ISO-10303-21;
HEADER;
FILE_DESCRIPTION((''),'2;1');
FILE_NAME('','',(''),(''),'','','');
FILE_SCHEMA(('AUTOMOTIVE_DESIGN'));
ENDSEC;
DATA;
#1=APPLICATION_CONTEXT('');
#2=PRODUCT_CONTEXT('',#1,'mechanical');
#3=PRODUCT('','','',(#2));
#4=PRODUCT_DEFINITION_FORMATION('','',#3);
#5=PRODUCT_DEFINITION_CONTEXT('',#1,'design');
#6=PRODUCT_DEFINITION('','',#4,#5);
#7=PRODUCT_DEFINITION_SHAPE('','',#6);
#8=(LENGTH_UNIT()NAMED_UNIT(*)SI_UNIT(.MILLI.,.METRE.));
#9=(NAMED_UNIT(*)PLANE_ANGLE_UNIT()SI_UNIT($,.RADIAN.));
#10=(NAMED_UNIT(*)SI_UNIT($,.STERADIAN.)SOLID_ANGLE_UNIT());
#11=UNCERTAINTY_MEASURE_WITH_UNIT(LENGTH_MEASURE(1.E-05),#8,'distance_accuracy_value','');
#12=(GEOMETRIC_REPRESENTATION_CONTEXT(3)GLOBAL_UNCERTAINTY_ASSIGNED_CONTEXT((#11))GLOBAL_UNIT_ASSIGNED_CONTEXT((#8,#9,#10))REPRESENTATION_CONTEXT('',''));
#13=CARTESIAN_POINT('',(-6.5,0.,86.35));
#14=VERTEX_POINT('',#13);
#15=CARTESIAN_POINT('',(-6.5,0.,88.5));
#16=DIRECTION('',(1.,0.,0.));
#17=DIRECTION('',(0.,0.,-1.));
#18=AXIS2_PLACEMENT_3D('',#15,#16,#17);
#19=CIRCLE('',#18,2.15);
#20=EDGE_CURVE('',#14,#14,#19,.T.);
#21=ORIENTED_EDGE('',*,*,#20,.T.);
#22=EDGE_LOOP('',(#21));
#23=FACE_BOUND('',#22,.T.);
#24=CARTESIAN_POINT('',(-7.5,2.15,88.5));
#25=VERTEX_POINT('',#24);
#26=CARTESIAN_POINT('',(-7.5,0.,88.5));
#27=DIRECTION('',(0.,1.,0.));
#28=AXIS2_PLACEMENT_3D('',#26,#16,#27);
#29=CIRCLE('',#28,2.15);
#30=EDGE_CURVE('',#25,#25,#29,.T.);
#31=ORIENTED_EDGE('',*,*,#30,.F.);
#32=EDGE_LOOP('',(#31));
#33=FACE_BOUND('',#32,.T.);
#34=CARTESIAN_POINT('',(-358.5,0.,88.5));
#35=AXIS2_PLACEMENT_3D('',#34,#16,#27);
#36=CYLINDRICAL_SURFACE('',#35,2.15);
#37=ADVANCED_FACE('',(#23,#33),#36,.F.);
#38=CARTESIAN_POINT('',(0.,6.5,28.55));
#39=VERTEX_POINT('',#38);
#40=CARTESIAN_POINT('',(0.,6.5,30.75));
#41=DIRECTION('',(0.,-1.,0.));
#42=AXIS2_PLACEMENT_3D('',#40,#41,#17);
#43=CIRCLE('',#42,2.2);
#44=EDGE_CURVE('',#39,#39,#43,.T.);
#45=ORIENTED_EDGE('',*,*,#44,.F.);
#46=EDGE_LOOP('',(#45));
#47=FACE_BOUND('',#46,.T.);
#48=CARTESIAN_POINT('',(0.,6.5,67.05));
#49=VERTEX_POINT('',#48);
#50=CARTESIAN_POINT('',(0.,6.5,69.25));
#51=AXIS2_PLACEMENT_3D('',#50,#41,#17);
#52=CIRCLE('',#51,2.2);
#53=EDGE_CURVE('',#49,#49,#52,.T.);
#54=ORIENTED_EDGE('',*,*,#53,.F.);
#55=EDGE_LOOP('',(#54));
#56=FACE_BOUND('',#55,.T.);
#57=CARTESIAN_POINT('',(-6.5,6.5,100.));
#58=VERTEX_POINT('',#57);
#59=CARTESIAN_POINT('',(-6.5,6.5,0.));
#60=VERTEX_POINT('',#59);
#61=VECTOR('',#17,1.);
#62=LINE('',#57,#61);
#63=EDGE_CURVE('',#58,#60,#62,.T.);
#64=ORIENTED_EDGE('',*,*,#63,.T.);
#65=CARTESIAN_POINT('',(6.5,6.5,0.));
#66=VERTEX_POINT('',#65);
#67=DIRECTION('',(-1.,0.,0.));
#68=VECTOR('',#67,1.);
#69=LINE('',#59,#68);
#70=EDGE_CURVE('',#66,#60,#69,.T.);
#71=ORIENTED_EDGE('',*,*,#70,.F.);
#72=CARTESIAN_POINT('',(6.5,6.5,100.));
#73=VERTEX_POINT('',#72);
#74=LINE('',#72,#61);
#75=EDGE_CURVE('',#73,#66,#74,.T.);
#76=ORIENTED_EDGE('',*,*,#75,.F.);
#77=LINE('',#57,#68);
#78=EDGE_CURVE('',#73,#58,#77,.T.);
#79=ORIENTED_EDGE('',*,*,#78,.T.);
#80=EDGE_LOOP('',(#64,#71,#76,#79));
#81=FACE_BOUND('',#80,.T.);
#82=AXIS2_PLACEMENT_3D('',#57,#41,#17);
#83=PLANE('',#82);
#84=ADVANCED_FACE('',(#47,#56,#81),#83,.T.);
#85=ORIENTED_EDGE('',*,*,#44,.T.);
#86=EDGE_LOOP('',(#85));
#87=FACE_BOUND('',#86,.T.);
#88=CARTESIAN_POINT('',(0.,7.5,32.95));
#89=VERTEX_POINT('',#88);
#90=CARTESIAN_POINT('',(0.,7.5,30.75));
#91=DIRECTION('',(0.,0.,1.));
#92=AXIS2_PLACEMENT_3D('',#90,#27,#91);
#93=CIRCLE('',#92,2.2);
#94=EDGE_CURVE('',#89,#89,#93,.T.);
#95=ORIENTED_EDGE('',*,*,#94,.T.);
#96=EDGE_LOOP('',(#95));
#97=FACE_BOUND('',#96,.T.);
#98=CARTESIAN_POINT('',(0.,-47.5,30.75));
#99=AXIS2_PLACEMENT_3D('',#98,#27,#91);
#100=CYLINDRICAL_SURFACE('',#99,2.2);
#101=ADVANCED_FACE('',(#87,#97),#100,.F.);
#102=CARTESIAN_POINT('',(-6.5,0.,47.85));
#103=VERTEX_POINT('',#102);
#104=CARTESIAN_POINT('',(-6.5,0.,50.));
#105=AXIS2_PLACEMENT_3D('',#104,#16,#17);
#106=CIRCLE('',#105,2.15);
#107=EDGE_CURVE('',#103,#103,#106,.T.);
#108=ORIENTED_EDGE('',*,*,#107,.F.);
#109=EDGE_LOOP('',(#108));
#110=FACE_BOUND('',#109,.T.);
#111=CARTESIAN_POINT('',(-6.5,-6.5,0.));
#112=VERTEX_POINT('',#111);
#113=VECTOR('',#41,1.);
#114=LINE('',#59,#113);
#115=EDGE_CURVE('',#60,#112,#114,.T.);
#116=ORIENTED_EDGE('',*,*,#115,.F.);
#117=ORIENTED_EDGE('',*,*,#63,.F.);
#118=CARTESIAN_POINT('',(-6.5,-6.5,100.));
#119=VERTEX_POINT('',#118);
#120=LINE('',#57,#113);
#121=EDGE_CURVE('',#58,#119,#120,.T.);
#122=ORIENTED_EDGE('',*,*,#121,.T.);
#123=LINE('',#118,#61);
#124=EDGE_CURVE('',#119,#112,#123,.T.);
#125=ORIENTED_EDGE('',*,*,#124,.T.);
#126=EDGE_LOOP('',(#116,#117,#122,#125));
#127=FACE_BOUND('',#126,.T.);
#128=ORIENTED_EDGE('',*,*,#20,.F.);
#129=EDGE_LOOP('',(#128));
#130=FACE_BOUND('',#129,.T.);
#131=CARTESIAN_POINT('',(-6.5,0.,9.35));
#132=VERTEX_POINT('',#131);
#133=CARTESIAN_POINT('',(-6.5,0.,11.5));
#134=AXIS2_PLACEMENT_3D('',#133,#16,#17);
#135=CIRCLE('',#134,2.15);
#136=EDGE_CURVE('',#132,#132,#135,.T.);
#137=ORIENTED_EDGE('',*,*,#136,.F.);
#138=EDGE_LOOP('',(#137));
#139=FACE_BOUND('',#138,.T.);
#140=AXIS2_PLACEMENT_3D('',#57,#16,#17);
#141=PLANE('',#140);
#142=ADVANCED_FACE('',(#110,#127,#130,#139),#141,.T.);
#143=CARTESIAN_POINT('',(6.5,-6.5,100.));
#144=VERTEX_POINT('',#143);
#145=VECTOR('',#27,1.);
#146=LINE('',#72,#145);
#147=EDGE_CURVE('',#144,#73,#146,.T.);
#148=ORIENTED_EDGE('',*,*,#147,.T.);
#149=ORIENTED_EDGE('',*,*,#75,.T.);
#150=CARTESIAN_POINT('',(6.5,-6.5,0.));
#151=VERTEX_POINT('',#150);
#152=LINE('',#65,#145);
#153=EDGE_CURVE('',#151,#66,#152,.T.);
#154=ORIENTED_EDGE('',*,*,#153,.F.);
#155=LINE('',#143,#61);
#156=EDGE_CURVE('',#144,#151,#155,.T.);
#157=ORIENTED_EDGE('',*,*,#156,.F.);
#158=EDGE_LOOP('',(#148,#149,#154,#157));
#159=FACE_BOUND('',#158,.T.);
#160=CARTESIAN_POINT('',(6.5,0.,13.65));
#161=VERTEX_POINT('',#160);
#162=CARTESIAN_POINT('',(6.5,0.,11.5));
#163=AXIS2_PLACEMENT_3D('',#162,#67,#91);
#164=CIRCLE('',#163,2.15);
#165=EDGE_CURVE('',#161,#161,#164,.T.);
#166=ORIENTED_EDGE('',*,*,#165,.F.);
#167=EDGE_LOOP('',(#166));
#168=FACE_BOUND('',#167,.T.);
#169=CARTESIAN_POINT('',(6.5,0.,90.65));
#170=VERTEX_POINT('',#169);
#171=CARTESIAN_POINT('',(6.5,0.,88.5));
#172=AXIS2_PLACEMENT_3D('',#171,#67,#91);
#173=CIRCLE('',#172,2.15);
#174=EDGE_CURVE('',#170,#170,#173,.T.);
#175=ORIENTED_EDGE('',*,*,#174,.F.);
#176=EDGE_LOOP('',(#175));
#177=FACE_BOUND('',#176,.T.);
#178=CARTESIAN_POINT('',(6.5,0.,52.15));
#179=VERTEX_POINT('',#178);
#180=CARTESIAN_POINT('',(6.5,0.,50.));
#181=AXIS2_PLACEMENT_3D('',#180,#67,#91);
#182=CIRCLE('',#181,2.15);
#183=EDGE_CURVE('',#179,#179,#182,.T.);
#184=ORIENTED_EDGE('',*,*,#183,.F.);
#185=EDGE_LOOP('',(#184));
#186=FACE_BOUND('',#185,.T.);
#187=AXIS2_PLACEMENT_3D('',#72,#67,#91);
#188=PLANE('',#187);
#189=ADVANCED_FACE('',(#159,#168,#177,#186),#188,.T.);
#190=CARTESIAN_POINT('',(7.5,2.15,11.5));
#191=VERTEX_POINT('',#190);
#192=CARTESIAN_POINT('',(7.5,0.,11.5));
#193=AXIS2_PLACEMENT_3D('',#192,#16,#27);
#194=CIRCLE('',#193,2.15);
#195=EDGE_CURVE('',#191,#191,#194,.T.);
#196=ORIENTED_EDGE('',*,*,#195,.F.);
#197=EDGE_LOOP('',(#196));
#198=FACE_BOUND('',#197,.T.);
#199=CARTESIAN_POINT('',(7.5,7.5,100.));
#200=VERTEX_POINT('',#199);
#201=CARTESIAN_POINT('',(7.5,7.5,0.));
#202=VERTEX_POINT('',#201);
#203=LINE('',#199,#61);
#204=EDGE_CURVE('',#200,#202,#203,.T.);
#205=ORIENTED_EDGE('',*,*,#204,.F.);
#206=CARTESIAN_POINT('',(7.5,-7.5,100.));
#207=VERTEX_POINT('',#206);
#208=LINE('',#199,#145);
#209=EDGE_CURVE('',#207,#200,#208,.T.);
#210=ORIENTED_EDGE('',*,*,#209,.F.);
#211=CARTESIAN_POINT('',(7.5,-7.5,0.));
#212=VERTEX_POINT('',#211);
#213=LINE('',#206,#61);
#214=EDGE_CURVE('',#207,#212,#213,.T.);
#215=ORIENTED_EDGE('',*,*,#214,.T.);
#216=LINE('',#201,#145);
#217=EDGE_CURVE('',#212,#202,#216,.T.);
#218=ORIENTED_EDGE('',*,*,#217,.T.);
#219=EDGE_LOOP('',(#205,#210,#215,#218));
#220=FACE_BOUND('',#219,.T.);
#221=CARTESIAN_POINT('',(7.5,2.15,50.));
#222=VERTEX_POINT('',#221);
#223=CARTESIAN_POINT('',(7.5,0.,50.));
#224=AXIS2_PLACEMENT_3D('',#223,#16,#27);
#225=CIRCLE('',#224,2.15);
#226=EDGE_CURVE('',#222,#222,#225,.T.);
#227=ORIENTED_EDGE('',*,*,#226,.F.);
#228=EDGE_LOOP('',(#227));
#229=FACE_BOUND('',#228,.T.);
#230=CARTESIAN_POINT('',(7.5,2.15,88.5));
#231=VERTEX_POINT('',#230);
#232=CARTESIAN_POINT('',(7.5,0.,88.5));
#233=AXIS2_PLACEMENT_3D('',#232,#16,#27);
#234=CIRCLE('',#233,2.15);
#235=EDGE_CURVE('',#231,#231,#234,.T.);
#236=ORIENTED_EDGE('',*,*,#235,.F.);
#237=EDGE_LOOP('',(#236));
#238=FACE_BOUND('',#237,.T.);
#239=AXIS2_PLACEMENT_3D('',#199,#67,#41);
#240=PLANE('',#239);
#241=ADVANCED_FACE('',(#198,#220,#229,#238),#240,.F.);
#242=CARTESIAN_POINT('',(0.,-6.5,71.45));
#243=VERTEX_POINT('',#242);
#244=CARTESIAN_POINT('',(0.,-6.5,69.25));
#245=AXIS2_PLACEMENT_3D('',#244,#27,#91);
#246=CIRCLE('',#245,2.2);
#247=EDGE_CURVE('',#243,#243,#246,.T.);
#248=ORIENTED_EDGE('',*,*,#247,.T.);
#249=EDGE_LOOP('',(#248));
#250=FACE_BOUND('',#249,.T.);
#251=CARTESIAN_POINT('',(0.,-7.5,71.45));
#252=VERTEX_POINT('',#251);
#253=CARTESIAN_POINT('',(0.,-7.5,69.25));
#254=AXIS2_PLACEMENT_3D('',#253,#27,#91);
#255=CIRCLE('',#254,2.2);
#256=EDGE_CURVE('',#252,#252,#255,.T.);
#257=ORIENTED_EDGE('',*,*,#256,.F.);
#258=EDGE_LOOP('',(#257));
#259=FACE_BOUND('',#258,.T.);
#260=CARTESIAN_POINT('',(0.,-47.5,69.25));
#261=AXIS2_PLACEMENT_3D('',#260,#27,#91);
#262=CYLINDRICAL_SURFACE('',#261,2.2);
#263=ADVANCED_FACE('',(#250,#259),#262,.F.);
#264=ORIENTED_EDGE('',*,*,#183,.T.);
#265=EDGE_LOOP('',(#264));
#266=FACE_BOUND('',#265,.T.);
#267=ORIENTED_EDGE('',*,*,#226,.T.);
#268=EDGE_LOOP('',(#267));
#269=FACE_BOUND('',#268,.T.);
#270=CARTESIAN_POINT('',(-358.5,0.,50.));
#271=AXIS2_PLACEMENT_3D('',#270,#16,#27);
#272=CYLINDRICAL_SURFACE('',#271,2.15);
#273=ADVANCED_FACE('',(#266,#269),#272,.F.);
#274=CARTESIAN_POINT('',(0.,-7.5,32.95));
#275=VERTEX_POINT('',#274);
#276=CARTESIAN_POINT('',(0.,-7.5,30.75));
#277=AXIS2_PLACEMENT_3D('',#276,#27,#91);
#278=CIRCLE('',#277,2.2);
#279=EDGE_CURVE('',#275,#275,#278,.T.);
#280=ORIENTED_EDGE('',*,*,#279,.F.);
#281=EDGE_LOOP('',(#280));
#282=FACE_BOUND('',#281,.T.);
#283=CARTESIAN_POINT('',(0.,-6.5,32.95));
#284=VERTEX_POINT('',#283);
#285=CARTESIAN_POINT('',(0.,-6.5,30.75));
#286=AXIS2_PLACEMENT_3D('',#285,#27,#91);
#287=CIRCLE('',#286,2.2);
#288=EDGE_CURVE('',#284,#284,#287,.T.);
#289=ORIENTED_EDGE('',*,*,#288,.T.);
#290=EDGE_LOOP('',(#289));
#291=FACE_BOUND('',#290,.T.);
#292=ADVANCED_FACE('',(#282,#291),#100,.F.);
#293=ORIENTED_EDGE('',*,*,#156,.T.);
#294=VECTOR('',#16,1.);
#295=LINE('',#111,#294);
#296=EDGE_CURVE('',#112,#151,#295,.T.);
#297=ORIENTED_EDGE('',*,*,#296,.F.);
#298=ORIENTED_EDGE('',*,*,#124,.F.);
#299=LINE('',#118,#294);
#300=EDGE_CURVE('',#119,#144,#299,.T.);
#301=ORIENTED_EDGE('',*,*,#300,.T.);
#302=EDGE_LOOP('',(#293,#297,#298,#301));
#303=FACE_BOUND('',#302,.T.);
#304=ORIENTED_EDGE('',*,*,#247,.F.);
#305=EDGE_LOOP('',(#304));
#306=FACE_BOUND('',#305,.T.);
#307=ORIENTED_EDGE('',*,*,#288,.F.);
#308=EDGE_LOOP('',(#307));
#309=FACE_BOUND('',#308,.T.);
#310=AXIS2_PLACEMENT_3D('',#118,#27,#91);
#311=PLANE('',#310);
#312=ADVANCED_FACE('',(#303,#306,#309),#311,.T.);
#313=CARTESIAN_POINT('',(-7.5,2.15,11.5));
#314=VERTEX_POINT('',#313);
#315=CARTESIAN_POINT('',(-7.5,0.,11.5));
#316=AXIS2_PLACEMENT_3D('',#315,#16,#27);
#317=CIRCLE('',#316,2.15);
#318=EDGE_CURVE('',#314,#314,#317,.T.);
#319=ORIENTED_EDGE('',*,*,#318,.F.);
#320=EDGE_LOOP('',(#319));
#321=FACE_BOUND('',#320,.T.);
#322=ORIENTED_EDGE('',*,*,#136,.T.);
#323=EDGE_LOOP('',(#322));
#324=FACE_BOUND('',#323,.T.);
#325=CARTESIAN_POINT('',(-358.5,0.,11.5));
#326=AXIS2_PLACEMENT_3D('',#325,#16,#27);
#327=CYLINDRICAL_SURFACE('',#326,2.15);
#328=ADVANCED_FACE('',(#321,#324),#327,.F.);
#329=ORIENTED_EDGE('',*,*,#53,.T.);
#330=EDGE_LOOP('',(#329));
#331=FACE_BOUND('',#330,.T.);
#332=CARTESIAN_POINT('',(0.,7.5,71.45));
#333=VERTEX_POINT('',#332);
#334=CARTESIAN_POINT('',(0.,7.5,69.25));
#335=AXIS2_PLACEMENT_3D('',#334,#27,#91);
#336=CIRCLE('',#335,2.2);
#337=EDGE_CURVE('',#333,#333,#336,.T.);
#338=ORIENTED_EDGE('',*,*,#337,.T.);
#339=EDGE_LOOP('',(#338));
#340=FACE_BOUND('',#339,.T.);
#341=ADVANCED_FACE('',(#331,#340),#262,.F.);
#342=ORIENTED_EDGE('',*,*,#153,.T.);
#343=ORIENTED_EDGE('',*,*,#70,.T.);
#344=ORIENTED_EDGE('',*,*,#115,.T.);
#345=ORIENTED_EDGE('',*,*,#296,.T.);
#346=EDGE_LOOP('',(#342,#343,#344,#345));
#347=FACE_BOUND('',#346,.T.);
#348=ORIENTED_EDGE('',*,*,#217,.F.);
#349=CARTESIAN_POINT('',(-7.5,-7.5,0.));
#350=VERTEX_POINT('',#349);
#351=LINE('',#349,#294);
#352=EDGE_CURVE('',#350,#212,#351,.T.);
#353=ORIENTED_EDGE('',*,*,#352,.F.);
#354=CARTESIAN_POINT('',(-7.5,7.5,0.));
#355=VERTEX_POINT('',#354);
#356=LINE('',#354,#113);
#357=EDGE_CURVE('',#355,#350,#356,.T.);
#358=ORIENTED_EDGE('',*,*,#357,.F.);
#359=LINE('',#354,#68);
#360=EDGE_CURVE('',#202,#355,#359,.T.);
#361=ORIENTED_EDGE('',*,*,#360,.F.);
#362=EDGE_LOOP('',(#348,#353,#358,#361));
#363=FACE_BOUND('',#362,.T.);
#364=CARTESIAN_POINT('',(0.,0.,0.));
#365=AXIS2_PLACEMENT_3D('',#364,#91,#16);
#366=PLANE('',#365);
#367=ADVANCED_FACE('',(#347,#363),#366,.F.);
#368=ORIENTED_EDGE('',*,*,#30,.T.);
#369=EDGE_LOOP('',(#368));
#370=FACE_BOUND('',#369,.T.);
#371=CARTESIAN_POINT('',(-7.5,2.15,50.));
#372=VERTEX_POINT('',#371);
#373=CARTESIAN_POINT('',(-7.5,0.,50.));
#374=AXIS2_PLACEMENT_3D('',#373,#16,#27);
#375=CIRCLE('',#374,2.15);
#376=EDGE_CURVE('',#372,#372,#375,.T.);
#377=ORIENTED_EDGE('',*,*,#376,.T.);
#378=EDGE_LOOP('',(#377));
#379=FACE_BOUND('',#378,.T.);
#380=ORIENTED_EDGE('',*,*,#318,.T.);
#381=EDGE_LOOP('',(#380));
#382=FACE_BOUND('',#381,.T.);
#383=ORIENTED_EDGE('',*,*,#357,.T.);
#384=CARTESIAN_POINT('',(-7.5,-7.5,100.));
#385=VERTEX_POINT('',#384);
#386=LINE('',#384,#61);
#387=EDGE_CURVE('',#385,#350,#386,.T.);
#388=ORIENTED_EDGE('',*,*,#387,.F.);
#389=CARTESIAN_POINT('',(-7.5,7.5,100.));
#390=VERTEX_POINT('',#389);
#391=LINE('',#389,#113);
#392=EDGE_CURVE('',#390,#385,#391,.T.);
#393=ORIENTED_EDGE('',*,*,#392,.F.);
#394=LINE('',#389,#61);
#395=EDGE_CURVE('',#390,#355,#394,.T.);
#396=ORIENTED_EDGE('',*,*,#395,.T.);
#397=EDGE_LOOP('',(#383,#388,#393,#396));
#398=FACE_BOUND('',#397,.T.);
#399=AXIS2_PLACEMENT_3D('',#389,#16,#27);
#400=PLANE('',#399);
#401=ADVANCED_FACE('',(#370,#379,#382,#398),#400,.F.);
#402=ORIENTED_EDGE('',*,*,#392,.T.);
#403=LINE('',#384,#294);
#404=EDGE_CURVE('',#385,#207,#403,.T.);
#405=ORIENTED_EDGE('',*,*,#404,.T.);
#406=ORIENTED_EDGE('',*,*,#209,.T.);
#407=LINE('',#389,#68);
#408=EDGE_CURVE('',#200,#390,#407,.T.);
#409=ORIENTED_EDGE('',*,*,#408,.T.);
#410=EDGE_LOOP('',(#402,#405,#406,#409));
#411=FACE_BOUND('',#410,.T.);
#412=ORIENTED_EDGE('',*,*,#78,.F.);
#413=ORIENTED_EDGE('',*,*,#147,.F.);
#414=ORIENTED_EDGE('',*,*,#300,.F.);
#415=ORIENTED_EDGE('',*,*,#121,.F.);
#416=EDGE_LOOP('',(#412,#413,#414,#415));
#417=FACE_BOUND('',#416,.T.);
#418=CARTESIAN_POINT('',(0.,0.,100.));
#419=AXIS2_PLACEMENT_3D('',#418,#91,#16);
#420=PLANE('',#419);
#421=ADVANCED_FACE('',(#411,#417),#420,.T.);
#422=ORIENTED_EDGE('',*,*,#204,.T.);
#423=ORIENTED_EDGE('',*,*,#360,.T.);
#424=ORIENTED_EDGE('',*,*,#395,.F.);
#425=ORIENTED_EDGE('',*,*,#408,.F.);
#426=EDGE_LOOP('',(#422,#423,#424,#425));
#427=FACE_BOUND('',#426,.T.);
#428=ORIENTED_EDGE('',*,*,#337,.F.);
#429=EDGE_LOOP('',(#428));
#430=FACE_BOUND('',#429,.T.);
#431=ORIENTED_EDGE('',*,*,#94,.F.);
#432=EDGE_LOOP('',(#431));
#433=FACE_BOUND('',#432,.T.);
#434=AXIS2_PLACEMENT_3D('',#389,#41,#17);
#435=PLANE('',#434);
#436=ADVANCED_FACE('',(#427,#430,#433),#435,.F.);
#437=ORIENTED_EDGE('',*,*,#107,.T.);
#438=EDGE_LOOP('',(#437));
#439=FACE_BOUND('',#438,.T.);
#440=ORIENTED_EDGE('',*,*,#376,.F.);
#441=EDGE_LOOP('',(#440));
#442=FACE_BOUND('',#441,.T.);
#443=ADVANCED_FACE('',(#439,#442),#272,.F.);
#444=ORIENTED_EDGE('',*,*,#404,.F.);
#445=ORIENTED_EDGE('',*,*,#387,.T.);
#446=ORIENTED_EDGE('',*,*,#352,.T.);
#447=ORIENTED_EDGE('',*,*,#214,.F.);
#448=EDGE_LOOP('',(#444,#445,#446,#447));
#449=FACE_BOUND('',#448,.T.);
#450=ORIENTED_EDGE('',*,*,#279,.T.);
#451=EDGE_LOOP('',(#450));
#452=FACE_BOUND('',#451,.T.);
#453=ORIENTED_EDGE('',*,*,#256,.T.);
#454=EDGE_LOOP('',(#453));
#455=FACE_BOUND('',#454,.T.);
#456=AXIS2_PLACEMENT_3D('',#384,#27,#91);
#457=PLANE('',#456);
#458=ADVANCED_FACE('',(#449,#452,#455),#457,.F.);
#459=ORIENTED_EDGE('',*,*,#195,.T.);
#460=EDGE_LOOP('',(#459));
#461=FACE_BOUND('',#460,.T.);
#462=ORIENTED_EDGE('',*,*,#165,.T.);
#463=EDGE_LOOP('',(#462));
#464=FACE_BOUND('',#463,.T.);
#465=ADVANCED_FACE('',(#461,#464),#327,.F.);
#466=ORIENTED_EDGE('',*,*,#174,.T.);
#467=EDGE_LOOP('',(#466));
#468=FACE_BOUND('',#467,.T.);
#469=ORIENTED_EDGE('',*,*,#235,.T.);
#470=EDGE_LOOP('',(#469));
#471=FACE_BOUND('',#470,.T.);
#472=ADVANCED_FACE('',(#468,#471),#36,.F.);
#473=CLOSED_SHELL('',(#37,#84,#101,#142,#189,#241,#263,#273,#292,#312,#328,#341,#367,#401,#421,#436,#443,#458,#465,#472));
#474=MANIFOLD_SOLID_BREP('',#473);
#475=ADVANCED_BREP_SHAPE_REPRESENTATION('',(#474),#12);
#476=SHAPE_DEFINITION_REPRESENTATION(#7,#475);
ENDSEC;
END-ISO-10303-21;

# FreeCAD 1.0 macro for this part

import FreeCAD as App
import Part
import Sketcher

V = App.Vector


def add_polygon(sketch, points):
    """Adds a closed chain of lines whose ends are joined by coincident constraints."""
    first, n = sketch.GeometryCount, len(points)
    for a, b in zip(points, points[1:] + points[:1]):
        sketch.addGeometry(Part.LineSegment(App.Vector(*a, 0), App.Vector(*b, 0)), False)
    for i in range(n):
        sketch.addConstraint(Sketcher.Constraint("Coincident", first + i, 2, first + (i + 1) % n, 1))

doc = App.newDocument("Part")
body = doc.addObject("PartDesign::Body", "Body")

sketch1 = body.newObject("Sketcher::SketchObject", "Sketch")
sketch1.AttachmentSupport = (doc.getObject("XY_Plane"), [""])
sketch1.MapMode = "FlatFace"
add_polygon(sketch1, [(-8, 8), (-8, -8), (8, -8), (8, 8)])
add_polygon(sketch1, [(6, -6), (-6, -6), (-6, 6), (6, 6)])
sketch1.addConstraint(Sketcher.Constraint("Vertical", 0))
sketch1.addConstraint(Sketcher.Constraint("Horizontal", 1))
sketch1.addConstraint(Sketcher.Constraint("Vertical", 2))
sketch1.addConstraint(Sketcher.Constraint("Horizontal", 3))
sketch1.addConstraint(Sketcher.Constraint("Horizontal", 4))
sketch1.addConstraint(Sketcher.Constraint("Vertical", 5))
sketch1.addConstraint(Sketcher.Constraint("Horizontal", 6))
sketch1.addConstraint(Sketcher.Constraint("Vertical", 7))
sketch1.addConstraint(Sketcher.Constraint("Symmetric", 0, 2, 2, 2, -1, 1))
sketch1.addConstraint(Sketcher.Constraint("Symmetric", 4, 2, 6, 2, -1, 1))
sketch1.addConstraint(Sketcher.Constraint("Equal", 3, 0))
sketch1.addConstraint(Sketcher.Constraint("Equal", 6, 5))
sketch1.addConstraint(Sketcher.Constraint("DistanceX", 1, 1, 1, 2, 15.0))
sketch1.addConstraint(Sketcher.Constraint("DistanceX", 4, 2, 4, 1, 13.0))
pad1 = body.newObject("PartDesign::Pad", "Pad")
pad1.Profile = sketch1
pad1.Length = 100

sketch2 = body.newObject("Sketcher::SketchObject", "Sketch001")
sketch2.AttachmentSupport = (doc.getObject("YZ_Plane"), [""])
sketch2.MapMode = "FlatFace"
sketch2.AttachmentOffset = App.Placement(V(0, 0, 7.5), App.Rotation())
sketch2.addGeometry(Part.Circle(V(0, 50, 0), V(0, 0, 1), 2.1), False)
sketch2.addGeometry(Part.Circle(V(0, 88.5, 0), V(0, 0, 1), 2.1), False)
sketch2.addGeometry(Part.Circle(V(0, 11.5, 0), V(0, 0, 1), 2.1), False)
sketch2.addConstraint(Sketcher.Constraint("Equal", 0, 1))
sketch2.addConstraint(Sketcher.Constraint("Equal", 1, 2))
sketch2.addConstraint(Sketcher.Constraint("PointOnObject", 0, 3, -2))
sketch2.addConstraint(Sketcher.Constraint("PointOnObject", 1, 3, -2))
sketch2.addConstraint(Sketcher.Constraint("PointOnObject", 2, 3, -2))
sketch2.addConstraint(Sketcher.Constraint("Diameter", 0, 4.3))
sketch2.addConstraint(Sketcher.Constraint("DistanceY", -1, 1, 0, 3, 50.0))
sketch2.addConstraint(Sketcher.Constraint("DistanceY", 2, 3, 1, 3, 77.0))
sketch2.addConstraint(Sketcher.Constraint("DistanceY", -1, 1, 1, 3, 88.5))
pocket1 = body.newObject("PartDesign::Pocket", "Pocket")
pocket1.Profile = sketch2
pocket1.Length = 366

sketch3 = body.newObject("Sketcher::SketchObject", "Sketch002")
sketch3.AttachmentSupport = (doc.getObject("XZ_Plane"), [""])
sketch3.MapMode = "FlatFace"
sketch3.AttachmentOffset = App.Placement(V(0, 0, -7.5), App.Rotation())
sketch3.addGeometry(Part.Circle(V(0, 30.8, 0), V(0, 0, 1), 2.2), False)
sketch3.addGeometry(Part.Circle(V(0, 69.2, 0), V(0, 0, 1), 2.2), False)
sketch3.addConstraint(Sketcher.Constraint("Equal", 0, 1))
sketch3.addConstraint(Sketcher.Constraint("PointOnObject", 0, 3, -2))
sketch3.addConstraint(Sketcher.Constraint("PointOnObject", 1, 3, -2))
sketch3.addConstraint(Sketcher.Constraint("Diameter", 0, 4.4))
sketch3.addConstraint(Sketcher.Constraint("DistanceY", 0, 3, 1, 3, 38.5))
sketch3.addConstraint(Sketcher.Constraint("DistanceY", -1, 1, 0, 3, 30.75))
pocket2 = body.newObject("PartDesign::Pocket", "Pocket001")
pocket2.Profile = sketch3
pocket2.Length = 55
pocket2.Reversed = True

doc.recompute()
